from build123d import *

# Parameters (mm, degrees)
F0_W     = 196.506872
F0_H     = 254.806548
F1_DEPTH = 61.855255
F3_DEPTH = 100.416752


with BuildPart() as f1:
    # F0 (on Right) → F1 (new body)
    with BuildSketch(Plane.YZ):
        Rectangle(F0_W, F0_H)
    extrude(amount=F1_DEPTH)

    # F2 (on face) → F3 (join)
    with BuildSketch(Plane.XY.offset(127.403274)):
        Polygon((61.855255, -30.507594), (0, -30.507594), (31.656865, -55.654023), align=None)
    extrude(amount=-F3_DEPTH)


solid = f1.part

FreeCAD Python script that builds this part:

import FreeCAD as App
import Part
import Sketcher
Q = App.Units.Quantity


def add_polygon(sketch, points):
    """Adds a closed chain of lines whose ends are joined by coincident constraints."""
    first, n = sketch.GeometryCount, len(points)
    for a, b in zip(points, points[1:] + points[:1]):
        sketch.addGeometry(Part.LineSegment(App.Vector(*a, 0), App.Vector(*b, 0)), False)
    for i in range(n):
        sketch.addConstraint(Sketcher.Constraint("Coincident", first + i, 2, first + (i + 1) % n, 1))

doc = App.newDocument("Part")
params = doc.addObject("Spreadsheet::Sheet", "Params")
for row, (alias, value) in enumerate([
    ("pad1_length", "61.855255 mm"),
    ("pad2_length", "100.416752 mm"),
], start=1):
    params.set(f"A{row}", alias)
    params.set(f"B{row}", "=" + value)
    params.setAlias(f"B{row}", alias)

body = doc.addObject("PartDesign::Body", "Body")

# Sketch on YZ plane
sketch1 = body.newObject("Sketcher::SketchObject", "Sketch")
sketch1.AttachmentSupport = (doc.getObject("YZ_Plane"), [""])
sketch1.MapMode = "FlatFace"
add_polygon(sketch1, [(-98.253436, 127.403274), (-98.253436, -127.403274), (98.253436, -127.403274), (98.253436, 127.403274)])  # lines 0-3
sketch1.addConstraint([
    Sketcher.Constraint("Vertical", 0),
    Sketcher.Constraint("Horizontal", 1),
    Sketcher.Constraint("Vertical", 2),
    Sketcher.Constraint("Horizontal", 3),
    Sketcher.Constraint("Symmetric", 0, 2, 2, 2, -1, 1),
    Sketcher.Constraint("DistanceX", 1, 1, 1, 2, Q("196.506872 mm")),
    Sketcher.Constraint("DistanceY", 0, 2, 0, 1, Q("254.806548 mm")),
])
pad1 = body.newObject("PartDesign::Pad", "Pad")
pad1.Profile = sketch1
pad1.setExpression("Length", "Params.pad1_length")

# Sketch on XY plane
sketch2 = body.newObject("Sketcher::SketchObject", "Sketch001")
sketch2.AttachmentSupport = (doc.getObject("XY_Plane"), [""])
sketch2.MapMode = "FlatFace"
sketch2.AttachmentOffset = App.Placement(App.Vector(0, 0, 127.403274), App.Rotation())
add_polygon(sketch2, [(61.855255, -30.507594), (0, -30.507594), (31.656865, -55.654023)])  # lines 0-2
sketch2.addConstraint([
    Sketcher.Constraint("Horizontal", 0),
    Sketcher.Constraint("PointOnObject", 0, 2, -2),
    Sketcher.Constraint("Distance", 2, Q("39.2974 mm")),
    Sketcher.Constraint("Distance", 1, Q("40.42895 mm")),
    Sketcher.Constraint("DistanceX", 0, 2, 0, 1, Q("61.855255 mm")),
    Sketcher.Constraint("DistanceY", 0, 2, -1, 1, Q("30.507594 mm")),
])
pad2 = body.newObject("PartDesign::Pad", "Pad001")
pad2.Profile = sketch2
pad2.setExpression("Length", "Params.pad2_length")
pad2.Reversed = True

doc.recompute()
